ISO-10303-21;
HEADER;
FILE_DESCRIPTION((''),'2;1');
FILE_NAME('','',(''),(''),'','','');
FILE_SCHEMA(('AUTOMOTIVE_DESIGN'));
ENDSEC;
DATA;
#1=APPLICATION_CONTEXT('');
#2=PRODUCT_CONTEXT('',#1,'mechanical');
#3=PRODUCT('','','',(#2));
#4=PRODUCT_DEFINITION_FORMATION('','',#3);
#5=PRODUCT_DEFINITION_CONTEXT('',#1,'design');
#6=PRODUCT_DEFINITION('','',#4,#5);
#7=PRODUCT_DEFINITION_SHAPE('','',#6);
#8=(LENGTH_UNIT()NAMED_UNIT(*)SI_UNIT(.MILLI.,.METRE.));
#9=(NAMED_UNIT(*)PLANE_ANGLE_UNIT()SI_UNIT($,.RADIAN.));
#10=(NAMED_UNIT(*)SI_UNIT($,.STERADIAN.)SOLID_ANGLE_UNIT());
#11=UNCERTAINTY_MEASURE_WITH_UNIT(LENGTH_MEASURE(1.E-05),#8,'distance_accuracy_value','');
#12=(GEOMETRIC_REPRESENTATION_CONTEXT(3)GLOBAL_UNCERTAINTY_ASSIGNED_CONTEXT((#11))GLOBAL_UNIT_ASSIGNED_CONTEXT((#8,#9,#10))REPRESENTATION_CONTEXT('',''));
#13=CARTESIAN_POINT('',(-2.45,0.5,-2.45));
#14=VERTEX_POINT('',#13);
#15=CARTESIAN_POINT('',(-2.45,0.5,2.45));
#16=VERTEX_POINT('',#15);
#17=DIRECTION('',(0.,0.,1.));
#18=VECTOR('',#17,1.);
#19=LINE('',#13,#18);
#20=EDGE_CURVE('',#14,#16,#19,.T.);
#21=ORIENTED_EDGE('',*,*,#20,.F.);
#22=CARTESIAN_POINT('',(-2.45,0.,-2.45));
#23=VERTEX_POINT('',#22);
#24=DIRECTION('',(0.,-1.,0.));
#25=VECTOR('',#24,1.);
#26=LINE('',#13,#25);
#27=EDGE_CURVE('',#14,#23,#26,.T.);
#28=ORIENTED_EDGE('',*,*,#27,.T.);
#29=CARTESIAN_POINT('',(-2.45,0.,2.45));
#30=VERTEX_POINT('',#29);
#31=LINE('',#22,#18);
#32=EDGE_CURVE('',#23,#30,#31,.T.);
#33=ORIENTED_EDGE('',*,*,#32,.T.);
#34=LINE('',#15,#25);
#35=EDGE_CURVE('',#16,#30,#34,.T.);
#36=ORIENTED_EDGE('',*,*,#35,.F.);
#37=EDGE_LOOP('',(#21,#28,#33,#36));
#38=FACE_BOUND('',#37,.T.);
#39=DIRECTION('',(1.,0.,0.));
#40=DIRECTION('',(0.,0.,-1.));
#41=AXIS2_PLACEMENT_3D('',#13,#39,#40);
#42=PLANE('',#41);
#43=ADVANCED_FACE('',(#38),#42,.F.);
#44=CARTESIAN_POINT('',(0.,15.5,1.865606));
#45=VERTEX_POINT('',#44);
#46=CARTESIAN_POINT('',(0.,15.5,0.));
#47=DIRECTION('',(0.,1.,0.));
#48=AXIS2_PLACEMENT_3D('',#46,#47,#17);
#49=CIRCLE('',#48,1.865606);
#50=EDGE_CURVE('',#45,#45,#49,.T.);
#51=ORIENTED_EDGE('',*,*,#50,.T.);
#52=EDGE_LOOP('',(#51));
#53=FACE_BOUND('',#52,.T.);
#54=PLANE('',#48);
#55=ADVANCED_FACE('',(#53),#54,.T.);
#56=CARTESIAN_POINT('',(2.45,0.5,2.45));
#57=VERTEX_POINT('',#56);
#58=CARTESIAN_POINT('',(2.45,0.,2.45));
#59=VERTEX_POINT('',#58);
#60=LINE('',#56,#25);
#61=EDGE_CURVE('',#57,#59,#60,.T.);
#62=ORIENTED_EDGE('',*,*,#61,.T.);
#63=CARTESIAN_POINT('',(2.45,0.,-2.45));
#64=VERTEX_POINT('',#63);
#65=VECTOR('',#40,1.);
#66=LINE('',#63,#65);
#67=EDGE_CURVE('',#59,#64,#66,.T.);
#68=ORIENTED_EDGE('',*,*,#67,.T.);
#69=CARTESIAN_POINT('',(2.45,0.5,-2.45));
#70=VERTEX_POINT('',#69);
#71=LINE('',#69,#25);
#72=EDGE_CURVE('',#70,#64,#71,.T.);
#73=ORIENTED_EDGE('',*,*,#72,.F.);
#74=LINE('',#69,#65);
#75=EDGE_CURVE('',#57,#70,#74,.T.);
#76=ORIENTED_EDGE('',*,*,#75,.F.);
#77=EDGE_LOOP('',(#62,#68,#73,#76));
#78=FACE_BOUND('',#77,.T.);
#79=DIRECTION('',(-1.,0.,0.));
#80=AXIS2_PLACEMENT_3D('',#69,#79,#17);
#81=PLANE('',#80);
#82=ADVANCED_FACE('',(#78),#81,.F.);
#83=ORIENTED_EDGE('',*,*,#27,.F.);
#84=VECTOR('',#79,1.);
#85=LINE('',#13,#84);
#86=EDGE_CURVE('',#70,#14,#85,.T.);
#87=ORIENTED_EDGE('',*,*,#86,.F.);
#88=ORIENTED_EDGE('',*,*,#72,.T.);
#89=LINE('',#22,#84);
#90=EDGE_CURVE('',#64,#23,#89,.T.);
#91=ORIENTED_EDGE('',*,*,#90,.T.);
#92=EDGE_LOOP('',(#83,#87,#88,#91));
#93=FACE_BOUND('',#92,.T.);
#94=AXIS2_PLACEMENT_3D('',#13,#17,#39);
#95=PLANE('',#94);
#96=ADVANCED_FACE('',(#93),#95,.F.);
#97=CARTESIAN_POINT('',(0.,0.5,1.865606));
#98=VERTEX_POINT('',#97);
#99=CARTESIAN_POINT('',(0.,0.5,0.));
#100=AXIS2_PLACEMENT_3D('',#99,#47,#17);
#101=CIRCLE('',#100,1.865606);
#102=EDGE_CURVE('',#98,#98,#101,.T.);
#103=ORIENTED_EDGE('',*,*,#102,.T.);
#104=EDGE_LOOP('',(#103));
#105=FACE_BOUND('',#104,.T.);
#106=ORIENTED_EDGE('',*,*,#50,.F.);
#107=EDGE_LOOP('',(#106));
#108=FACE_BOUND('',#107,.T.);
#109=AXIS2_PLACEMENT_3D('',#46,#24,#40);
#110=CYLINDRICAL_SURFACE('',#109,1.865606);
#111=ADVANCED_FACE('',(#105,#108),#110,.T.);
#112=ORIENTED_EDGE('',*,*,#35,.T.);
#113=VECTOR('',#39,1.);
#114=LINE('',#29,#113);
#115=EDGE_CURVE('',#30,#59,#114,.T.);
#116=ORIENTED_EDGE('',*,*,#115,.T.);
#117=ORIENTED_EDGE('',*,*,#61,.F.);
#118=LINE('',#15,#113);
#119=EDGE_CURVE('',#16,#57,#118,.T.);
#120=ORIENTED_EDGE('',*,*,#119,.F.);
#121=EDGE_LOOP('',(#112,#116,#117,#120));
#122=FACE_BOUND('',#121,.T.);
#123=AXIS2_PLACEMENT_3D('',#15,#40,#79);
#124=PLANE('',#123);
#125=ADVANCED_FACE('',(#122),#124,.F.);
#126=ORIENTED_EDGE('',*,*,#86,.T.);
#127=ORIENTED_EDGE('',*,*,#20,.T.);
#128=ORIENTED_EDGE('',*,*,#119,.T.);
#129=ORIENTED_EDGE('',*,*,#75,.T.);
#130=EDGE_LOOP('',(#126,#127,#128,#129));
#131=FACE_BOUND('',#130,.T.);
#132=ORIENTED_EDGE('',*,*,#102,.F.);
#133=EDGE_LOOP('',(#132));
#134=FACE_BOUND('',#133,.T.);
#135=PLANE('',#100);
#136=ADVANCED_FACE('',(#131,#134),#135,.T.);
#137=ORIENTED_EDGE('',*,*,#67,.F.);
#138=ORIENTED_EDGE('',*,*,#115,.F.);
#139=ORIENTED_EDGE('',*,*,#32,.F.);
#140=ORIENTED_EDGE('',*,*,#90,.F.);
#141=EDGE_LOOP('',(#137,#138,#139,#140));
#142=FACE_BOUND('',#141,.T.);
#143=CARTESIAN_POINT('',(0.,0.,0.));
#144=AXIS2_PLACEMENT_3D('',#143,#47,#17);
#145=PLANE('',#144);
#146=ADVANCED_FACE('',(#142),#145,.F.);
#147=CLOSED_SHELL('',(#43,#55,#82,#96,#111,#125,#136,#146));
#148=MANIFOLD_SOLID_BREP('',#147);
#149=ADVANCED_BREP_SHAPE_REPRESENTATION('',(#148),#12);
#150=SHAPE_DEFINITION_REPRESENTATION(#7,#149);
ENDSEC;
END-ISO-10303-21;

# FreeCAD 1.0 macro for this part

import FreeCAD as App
import Part
import Sketcher

V = App.Vector


def add_polygon(sketch, points):
    """Adds a closed chain of lines whose ends are joined by coincident constraints."""
    first, n = sketch.GeometryCount, len(points)
    for a, b in zip(points, points[1:] + points[:1]):
        sketch.addGeometry(Part.LineSegment(App.Vector(*a, 0), App.Vector(*b, 0)), False)
    for i in range(n):
        sketch.addConstraint(Sketcher.Constraint("Coincident", first + i, 2, first + (i + 1) % n, 1))

doc = App.newDocument("Part")
body = doc.addObject("PartDesign::Body", "Body")

sketch1 = body.newObject("Sketcher::SketchObject", "Sketch")
sketch1.AttachmentSupport = (doc.getObject("XZ_Plane"), [""])
sketch1.MapMode = "FlatFace"
add_polygon(sketch1, [(-2.5, -2.5), (-2.5, 2.5), (2.5, 2.5), (2.5, -2.5)])
sketch1.addConstraint(Sketcher.Constraint("Vertical", 0))
sketch1.addConstraint(Sketcher.Constraint("Horizontal", 1))
sketch1.addConstraint(Sketcher.Constraint("Vertical", 2))
sketch1.addConstraint(Sketcher.Constraint("Horizontal", 3))
sketch1.addConstraint(Sketcher.Constraint("Symmetric", 0, 2, 2, 2, -1, 1))
sketch1.addConstraint(Sketcher.Constraint("Equal", 3, 0))
sketch1.addConstraint(Sketcher.Constraint("DistanceX", 1, 1, 1, 2, 4.9))
pad1 = body.newObject("PartDesign::Pad", "Pad")
pad1.Profile = sketch1
pad1.Length = 0.5
pad1.Reversed = True

sketch2 = body.newObject("Sketcher::SketchObject", "Sketch001")
sketch2.AttachmentSupport = (doc.getObject("XZ_Plane"), [""])
sketch2.MapMode = "FlatFace"
sketch2.AttachmentOffset = App.Placement(V(0, 0, -0.5), App.Rotation())
sketch2.addGeometry(Part.Circle(V(0, 0, 0), V(0, 0, 1), 1.9), False)
sketch2.addConstraint(Sketcher.Constraint("Coincident", 0, 3, -1, 1))
sketch2.addConstraint(Sketcher.Constraint("Diameter", 0, 3.731212))
pad2 = body.newObject("PartDesign::Pad", "Pad001")
pad2.Profile = sketch2
pad2.Length = 15
pad2.Reversed = True

doc.recompute()
